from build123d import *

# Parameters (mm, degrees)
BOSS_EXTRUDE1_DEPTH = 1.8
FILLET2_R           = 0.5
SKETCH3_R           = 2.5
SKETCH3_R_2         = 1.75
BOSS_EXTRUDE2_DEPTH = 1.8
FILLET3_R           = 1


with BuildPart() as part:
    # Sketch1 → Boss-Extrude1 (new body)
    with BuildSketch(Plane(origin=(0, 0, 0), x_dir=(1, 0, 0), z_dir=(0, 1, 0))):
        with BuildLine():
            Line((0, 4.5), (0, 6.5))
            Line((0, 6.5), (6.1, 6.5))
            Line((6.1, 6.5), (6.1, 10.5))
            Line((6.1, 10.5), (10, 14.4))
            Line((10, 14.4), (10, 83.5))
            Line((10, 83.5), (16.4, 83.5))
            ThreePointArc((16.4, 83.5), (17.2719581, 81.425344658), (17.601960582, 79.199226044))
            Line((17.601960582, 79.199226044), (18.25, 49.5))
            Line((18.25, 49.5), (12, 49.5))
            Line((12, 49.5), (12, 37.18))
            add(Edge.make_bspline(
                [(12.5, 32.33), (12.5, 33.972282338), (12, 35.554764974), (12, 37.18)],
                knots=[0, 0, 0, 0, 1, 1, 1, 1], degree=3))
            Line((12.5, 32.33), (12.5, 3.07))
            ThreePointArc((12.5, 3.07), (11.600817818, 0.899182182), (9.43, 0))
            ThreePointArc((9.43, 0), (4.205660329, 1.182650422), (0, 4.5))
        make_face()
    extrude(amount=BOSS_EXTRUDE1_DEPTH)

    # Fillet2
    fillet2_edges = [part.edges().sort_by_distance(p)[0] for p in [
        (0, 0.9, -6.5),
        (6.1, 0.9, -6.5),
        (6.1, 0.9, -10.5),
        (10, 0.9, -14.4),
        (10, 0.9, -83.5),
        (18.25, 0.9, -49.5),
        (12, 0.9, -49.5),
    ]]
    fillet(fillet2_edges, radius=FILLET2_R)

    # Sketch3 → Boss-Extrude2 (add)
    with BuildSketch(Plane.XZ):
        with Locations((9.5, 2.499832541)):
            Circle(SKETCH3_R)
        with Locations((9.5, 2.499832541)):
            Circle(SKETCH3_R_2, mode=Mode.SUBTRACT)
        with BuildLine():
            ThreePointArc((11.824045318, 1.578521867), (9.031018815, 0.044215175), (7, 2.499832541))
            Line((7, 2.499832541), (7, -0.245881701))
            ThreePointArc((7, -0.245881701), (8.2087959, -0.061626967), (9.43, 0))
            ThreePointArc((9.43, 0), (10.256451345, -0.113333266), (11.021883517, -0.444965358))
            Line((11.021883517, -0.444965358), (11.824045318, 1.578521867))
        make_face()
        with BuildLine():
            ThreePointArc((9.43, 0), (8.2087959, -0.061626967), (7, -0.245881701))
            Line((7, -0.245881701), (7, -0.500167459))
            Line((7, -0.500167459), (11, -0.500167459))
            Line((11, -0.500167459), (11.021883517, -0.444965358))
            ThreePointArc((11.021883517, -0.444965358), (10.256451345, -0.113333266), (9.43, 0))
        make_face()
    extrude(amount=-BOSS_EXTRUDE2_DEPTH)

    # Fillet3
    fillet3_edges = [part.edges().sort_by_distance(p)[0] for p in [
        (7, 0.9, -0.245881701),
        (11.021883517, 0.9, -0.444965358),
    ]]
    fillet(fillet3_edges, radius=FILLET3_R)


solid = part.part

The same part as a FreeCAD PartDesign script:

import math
import FreeCAD as App
import Part
import Sketcher

V = App.Vector


def edges_at(feature, points):
    """Names of the edges that pass closest to the given points."""
    edges = feature.Shape.Edges
    near = lambda p: min(range(len(edges)), key=lambda i: edges[i].distToShape(Part.Vertex(*p))[0])
    return sorted({f"Edge{near(p) + 1}" for p in points})

doc = App.newDocument("Part")
params = doc.addObject("Spreadsheet::Sheet", "Params")
for row, (alias, value) in enumerate([
    ("sketch1_radius", "9 mm"),
    ("sketch1_height", "2 mm"),
    ("sketch1_height2", "4 mm"),
    ("sketch1_radius2", "3.07 mm"),
    ("sketch1_width", "6.4 mm"),
    ("pad1_length", "1.8 mm"),
    ("fillet_radius", "0.5 mm"),
    ("sketch2_diameter", "3.5 mm"),
    ("sketch2_radius", "2.5 mm"),
    ("sketch2_width", "4 mm"),
    ("sketch2_height", "3 mm"),
    ("pad2_length", "1.8 mm"),
    ("fillet2_radius", "1 mm"),
], start=1):
    params.set(f"A{row}", alias)
    params.set(f"B{row}", "=" + value)
    params.setAlias(f"B{row}", alias)

body = doc.addObject("PartDesign::Body", "Body")

sketch1 = body.newObject("Sketcher::SketchObject", "Sketch")
sketch1.AttachmentSupport = (doc.getObject("XZ_Plane"), [""])
sketch1.MapMode = "FlatFace"
sketch1.addGeometry([
    Part.LineSegment(V(0, -6.5, 0), V(0, -4.5, 0)),
    Part.ArcOfCircle(Part.Circle(V(9.43, -12.130544, 0), V(0, 0, 1), 12.130544), math.radians(90), math.radians(141.020993)),
    Part.ArcOfCircle(Part.Circle(V(9.43, -3.07, 0), V(0, 0, 1), 3.07), math.radians(0), math.radians(90)),
    Part.LineSegment(V(12.5, -3.07, 0), V(12.5, -32.33, 0)),
    Part.BSplineCurve([V(12.5, -32.33, 0), V(12.5, -33.972282, 0), V(12, -35.554765, 0), V(12, -37.18, 0)], [4, 4], [0, 1], False, 3, [1, 1, 1, 1], False),
    Part.LineSegment(V(12, -37.18, 0), V(12, -49.5, 0)),
    Part.LineSegment(V(12, -49.5, 0), V(18.25, -49.5, 0)),
    Part.LineSegment(V(18.25, -49.5, 0), V(17.601961, -79.199226, 0)),
    Part.ArcOfCircle(Part.Circle(V(8.604102, -79.002892, 0), V(0, 0, 1), 9), math.radians(-29.978742), math.radians(-1.25)),
    Part.LineSegment(V(16.4, -83.5, 0), V(10, -83.5, 0)),
    Part.LineSegment(V(10, -83.5, 0), V(10, -14.4, 0)),
    Part.LineSegment(V(10, -14.4, 0), V(6.1, -10.5, 0)),
    Part.LineSegment(V(6.1, -10.5, 0), V(6.1, -6.5, 0)),
    Part.LineSegment(V(6.1, -6.5, 0), V(0, -6.5, 0)),
], False)
sketch1.addConstraint([
    Sketcher.Constraint("Block", 4),
    Sketcher.Constraint("Coincident", 0, 2, 1, 2),
    Sketcher.Constraint("Coincident", 1, 1, 2, 2),
    Sketcher.Constraint("Coincident", 2, 1, 3, 1),
    Sketcher.Constraint("Coincident", 3, 2, 4, 1),
    Sketcher.Constraint("Coincident", 4, 2, 5, 1),
    Sketcher.Constraint("Coincident", 5, 2, 6, 1),
    Sketcher.Constraint("Coincident", 6, 2, 7, 1),
    Sketcher.Constraint("Coincident", 7, 2, 8, 2),
    Sketcher.Constraint("Coincident", 8, 1, 9, 1),
    Sketcher.Constraint("Coincident", 9, 2, 10, 1),
    Sketcher.Constraint("Coincident", 10, 2, 11, 1),
    Sketcher.Constraint("Coincident", 11, 2, 12, 1),
    Sketcher.Constraint("Coincident", 12, 2, 13, 1),
    Sketcher.Constraint("Coincident", 13, 2, 0, 1),
    Sketcher.Constraint("Vertical", 0),
    Sketcher.Constraint("Vertical", 3),
    Sketcher.Constraint("Vertical", 5),
    Sketcher.Constraint("Horizontal", 6),
    Sketcher.Constraint("Horizontal", 9),
    Sketcher.Constraint("Vertical", 10),
    Sketcher.Constraint("Vertical", 12),
    Sketcher.Constraint("Horizontal", 13),
    Sketcher.Constraint("PointOnObject", 0, 2, -2),
    Sketcher.Constraint("PointOnObject", 1, 1, -1),
    Sketcher.Constraint("Radius", 8, 9.0),
    Sketcher.Constraint("DistanceY", 0, 1, 0, 2, 2.0),
    Sketcher.Constraint("DistanceY", 12, 1, 12, 2, 4.0),
    Sketcher.Constraint("Radius", 2, 3.07),
    Sketcher.Constraint("DistanceX", 9, 2, 9, 1, 6.4),
    Sketcher.Constraint("DistanceX", 13, 2, 13, 1, 6.1),
    Sketcher.Constraint("DistanceY", 10, 1, 10, 2, 69.1),
    Sketcher.Constraint("DistanceX", -1, 1, 9, 2, 10.0),
    Sketcher.Constraint("DistanceY", 8, 1, 6, 2, 34.0),
    Sketcher.Constraint("DistanceX", 6, 1, 6, 2, 6.25),
    Sketcher.Constraint("DistanceY", 3, 2, 3, 1, 29.26),
    Sketcher.Constraint("DistanceY", 5, 2, 5, 1, 12.32),
    Sketcher.Constraint("DistanceY", 0, 2, -1, 1, 4.5),
    Sketcher.Constraint("DistanceX", -1, 1, 1, 3, 9.43),
    Sketcher.Constraint("DistanceX", -1, 1, 1, 1, 9.43),
    Sketcher.Constraint("DistanceX", -1, 1, 7, 2, 17.601961),
    Sketcher.Constraint("DistanceX", 8, 3, 7, 2, 8.997858),
])
sketch1.setExpression("Constraints[25]", "Params.sketch1_radius")
sketch1.setExpression("Constraints[26]", "Params.sketch1_height")
sketch1.setExpression("Constraints[27]", "Params.sketch1_height2")
sketch1.setExpression("Constraints[28]", "Params.sketch1_radius2")
sketch1.setExpression("Constraints[29]", "Params.sketch1_width")
pad1 = body.newObject("PartDesign::Pad", "Pad")
pad1.Profile = sketch1
pad1.setExpression("Length", "Params.pad1_length")
pad1.Reversed = True
doc.recompute()

fillet = body.newObject("PartDesign::Fillet", "Fillet")
fillet.Base = (pad1, edges_at(pad1, [
    (0, 0.9, -6.5),
    (6.1, 0.9, -6.5),
    (6.1, 0.9, -10.5),
    (10, 0.9, -14.4),
    (10, 0.9, -83.5),
    (18.25, 0.9, -49.5),
    (12, 0.9, -49.5),
]))
fillet.setExpression("Radius", "Params.fillet_radius")

sketch2 = body.newObject("Sketcher::SketchObject", "Sketch001")
sketch2.AttachmentSupport = (doc.getObject("XZ_Plane"), [""])
sketch2.MapMode = "FlatFace"
sketch2.addGeometry([
    Part.LineSegment(V(7, 2.499833, 0), V(7, -0.500167, 0)),
    Part.LineSegment(V(7, -0.500167, 0), V(11, -0.500167, 0)),
    Part.LineSegment(V(11, -0.500167, 0), V(11.021884, -0.444965, 0)),
    Part.LineSegment(V(11.021884, -0.444965, 0), V(11.824045, 1.578522, 0)),
    Part.ArcOfCircle(Part.Circle(V(9.5, 2.499833, 0), V(0, 0, 1), 2.5), math.radians(-21.624634), math.radians(180)),
    Part.Circle(V(9.5, 2.499833, 0), V(0, 0, 1), 1.75),
], False)
sketch2.addConstraint([
    Sketcher.Constraint("Coincident", 0, 2, 1, 1),
    Sketcher.Constraint("Coincident", 1, 2, 2, 1),
    Sketcher.Constraint("Coincident", 2, 2, 3, 1),
    Sketcher.Constraint("Tangent", 3, 2, 4, 1),
    Sketcher.Constraint("Tangent", 4, 2, 0, 1),
    Sketcher.Constraint("Vertical", 0),
    Sketcher.Constraint("Horizontal", 1),
    Sketcher.Constraint("Coincident", 5, 3, 4, 3),
    Sketcher.Constraint("Parallel", 2, 3),
    Sketcher.Constraint("Diameter", 5, 3.5),
    Sketcher.Constraint("Radius", 4, 2.5),
    Sketcher.Constraint("DistanceX", 1, 1, 1, 2, 4.0),
    Sketcher.Constraint("DistanceY", 0, 2, 0, 1, 3.0),
    Sketcher.Constraint("DistanceX", -1, 1, 0, 2, 7.0),
    Sketcher.Constraint("Distance", 2, 0.059381),
    Sketcher.Constraint("DistanceY", -1, 1, 3, 2, 1.578522),
])
sketch2.setExpression("Constraints[9]", "Params.sketch2_diameter")
sketch2.setExpression("Constraints[10]", "Params.sketch2_radius")
sketch2.setExpression("Constraints[11]", "Params.sketch2_width")
sketch2.setExpression("Constraints[12]", "Params.sketch2_height")
pad2 = body.newObject("PartDesign::Pad", "Pad001")
pad2.Profile = sketch2
pad2.setExpression("Length", "Params.pad2_length")
pad2.Reversed = True
doc.recompute()

fillet2 = body.newObject("PartDesign::Fillet", "Fillet001")
fillet2.Base = (pad2, edges_at(pad2, [(7, 0.9, -0.246), (11.022, 0.9, -0.445)]))
fillet2.setExpression("Radius", "Params.fillet2_radius")

doc.recompute()
